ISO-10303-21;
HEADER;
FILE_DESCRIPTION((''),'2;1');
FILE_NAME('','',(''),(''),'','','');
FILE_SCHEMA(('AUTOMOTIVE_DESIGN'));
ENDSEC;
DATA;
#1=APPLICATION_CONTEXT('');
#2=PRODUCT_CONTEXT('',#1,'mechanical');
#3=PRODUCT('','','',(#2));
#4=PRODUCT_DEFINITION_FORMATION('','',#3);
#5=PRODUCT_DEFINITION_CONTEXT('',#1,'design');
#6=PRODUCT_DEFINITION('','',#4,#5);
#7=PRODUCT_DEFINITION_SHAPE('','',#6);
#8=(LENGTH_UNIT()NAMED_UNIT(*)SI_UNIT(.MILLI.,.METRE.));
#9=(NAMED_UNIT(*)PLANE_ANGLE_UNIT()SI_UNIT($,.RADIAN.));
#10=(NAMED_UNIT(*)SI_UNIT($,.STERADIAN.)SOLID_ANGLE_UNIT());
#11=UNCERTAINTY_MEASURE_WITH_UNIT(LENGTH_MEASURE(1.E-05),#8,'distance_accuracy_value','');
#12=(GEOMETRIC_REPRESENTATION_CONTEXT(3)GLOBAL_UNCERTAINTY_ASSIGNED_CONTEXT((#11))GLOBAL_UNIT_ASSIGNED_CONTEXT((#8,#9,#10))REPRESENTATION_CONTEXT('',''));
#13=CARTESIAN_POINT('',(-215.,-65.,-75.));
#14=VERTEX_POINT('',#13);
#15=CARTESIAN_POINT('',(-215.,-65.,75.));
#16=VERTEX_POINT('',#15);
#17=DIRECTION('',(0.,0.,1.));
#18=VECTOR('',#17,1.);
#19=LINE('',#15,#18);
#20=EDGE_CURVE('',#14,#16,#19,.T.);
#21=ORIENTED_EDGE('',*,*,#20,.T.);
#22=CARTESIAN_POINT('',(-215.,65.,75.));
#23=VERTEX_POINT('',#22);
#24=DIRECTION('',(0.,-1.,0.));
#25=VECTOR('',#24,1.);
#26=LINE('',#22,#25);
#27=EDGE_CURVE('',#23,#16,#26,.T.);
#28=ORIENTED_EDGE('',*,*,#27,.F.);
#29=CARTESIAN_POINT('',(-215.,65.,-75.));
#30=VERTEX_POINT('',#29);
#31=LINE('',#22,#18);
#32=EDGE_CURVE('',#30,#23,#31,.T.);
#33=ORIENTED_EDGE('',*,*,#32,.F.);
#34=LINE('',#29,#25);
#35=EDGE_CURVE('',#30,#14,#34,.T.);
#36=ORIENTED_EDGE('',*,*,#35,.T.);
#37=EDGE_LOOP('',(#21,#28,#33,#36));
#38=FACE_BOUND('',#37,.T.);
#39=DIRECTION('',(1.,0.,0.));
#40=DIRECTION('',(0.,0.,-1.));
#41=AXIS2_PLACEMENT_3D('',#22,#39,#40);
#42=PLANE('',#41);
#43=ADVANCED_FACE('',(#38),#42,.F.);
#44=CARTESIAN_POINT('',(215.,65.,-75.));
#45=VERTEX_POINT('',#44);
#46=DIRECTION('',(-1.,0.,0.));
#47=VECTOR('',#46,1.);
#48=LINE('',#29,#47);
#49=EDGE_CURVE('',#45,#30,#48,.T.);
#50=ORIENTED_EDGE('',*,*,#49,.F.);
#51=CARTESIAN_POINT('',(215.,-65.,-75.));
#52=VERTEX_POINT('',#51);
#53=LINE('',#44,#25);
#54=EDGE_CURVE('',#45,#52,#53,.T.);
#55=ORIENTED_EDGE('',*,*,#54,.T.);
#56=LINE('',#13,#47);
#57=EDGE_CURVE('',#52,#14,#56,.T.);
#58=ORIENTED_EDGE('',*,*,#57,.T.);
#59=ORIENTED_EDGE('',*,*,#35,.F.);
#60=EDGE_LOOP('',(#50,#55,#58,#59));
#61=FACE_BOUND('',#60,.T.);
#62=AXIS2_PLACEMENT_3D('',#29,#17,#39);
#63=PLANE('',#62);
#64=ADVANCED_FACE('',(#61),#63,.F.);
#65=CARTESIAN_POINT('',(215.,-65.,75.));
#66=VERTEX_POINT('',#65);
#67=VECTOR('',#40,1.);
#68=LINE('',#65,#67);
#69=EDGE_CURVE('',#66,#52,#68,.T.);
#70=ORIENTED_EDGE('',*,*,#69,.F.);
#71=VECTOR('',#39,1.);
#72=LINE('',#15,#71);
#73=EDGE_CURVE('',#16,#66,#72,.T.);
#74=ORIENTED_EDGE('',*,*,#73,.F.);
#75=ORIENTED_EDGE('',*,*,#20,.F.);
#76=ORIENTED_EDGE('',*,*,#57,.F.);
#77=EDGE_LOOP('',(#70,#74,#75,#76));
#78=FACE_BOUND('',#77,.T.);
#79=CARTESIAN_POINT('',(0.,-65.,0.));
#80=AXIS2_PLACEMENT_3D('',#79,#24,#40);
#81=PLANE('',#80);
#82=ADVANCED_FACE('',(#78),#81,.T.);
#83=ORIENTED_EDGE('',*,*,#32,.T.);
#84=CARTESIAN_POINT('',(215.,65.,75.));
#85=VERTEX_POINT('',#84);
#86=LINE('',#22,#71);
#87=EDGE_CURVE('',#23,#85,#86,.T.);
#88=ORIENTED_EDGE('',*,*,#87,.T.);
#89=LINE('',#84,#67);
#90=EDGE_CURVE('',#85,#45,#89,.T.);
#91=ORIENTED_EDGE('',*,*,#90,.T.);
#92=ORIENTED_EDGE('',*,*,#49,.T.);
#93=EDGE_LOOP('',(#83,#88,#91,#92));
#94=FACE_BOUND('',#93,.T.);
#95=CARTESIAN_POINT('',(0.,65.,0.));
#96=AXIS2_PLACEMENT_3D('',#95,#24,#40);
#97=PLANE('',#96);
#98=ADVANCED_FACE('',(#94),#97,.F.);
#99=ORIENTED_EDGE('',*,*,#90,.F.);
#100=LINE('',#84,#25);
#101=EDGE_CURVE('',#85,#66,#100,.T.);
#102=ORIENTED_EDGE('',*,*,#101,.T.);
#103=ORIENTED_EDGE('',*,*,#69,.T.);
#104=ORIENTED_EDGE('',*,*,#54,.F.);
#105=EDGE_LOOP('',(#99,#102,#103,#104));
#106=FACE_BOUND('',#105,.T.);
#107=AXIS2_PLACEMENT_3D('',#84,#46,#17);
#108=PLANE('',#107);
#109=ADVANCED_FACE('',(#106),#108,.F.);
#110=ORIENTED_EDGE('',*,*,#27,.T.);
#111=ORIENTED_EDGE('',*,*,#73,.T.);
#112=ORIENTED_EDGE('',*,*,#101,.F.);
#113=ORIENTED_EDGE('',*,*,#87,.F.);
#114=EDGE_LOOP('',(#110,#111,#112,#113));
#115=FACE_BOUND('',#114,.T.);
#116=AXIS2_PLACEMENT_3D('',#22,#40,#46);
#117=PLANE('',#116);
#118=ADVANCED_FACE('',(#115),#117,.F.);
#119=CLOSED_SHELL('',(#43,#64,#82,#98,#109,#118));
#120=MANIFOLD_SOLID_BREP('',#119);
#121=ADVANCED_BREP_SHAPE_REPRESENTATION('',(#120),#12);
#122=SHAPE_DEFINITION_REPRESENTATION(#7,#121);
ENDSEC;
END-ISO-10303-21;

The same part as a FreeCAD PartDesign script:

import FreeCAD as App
import Part
import Sketcher
Q = App.Units.Quantity


def add_polygon(sketch, points):
    """Adds a closed chain of lines whose ends are joined by coincident constraints."""
    first, n = sketch.GeometryCount, len(points)
    for a, b in zip(points, points[1:] + points[:1]):
        sketch.addGeometry(Part.LineSegment(App.Vector(*a, 0), App.Vector(*b, 0)), False)
    for i in range(n):
        sketch.addConstraint(Sketcher.Constraint("Coincident", first + i, 2, first + (i + 1) % n, 1))

doc = App.newDocument("Part")
params = doc.addObject("Spreadsheet::Sheet", "Params")
for row, (alias, value) in enumerate([
    ("sketch1_width", "430 mm"),
    ("sketch1_height", "150 mm"),
    ("pad1_length", "130 mm"),
], start=1):
    params.set(f"A{row}", alias)
    params.set(f"B{row}", "=" + value)
    params.setAlias(f"B{row}", alias)

body = doc.addObject("PartDesign::Body", "Body")

sketch1 = body.newObject("Sketcher::SketchObject", "Sketch")
sketch1.AttachmentSupport = (doc.getObject("XZ_Plane"), [""])
sketch1.MapMode = "FlatFace"
add_polygon(sketch1, [(-215, -75), (-215, 75), (215, 75), (215, -75)])
sketch1.addConstraint([
    Sketcher.Constraint("Vertical", 0),
    Sketcher.Constraint("Horizontal", 1),
    Sketcher.Constraint("Vertical", 2),
    Sketcher.Constraint("Horizontal", 3),
    Sketcher.Constraint("Symmetric", 0, 2, 2, 2, -1, 1),
    Sketcher.Constraint("DistanceX", 1, 1, 1, 2, Q("430 mm")),
    Sketcher.Constraint("DistanceY", 0, 1, 0, 2, Q("150 mm")),
])
sketch1.setExpression("Constraints[9]", "Params.sketch1_width")
sketch1.setExpression("Constraints[10]", "Params.sketch1_height")
pad1 = body.newObject("PartDesign::Pad", "Pad")
pad1.Profile = sketch1
pad1.setExpression("Length", "Params.pad1_length")
pad1.Midplane = True

doc.recompute()
